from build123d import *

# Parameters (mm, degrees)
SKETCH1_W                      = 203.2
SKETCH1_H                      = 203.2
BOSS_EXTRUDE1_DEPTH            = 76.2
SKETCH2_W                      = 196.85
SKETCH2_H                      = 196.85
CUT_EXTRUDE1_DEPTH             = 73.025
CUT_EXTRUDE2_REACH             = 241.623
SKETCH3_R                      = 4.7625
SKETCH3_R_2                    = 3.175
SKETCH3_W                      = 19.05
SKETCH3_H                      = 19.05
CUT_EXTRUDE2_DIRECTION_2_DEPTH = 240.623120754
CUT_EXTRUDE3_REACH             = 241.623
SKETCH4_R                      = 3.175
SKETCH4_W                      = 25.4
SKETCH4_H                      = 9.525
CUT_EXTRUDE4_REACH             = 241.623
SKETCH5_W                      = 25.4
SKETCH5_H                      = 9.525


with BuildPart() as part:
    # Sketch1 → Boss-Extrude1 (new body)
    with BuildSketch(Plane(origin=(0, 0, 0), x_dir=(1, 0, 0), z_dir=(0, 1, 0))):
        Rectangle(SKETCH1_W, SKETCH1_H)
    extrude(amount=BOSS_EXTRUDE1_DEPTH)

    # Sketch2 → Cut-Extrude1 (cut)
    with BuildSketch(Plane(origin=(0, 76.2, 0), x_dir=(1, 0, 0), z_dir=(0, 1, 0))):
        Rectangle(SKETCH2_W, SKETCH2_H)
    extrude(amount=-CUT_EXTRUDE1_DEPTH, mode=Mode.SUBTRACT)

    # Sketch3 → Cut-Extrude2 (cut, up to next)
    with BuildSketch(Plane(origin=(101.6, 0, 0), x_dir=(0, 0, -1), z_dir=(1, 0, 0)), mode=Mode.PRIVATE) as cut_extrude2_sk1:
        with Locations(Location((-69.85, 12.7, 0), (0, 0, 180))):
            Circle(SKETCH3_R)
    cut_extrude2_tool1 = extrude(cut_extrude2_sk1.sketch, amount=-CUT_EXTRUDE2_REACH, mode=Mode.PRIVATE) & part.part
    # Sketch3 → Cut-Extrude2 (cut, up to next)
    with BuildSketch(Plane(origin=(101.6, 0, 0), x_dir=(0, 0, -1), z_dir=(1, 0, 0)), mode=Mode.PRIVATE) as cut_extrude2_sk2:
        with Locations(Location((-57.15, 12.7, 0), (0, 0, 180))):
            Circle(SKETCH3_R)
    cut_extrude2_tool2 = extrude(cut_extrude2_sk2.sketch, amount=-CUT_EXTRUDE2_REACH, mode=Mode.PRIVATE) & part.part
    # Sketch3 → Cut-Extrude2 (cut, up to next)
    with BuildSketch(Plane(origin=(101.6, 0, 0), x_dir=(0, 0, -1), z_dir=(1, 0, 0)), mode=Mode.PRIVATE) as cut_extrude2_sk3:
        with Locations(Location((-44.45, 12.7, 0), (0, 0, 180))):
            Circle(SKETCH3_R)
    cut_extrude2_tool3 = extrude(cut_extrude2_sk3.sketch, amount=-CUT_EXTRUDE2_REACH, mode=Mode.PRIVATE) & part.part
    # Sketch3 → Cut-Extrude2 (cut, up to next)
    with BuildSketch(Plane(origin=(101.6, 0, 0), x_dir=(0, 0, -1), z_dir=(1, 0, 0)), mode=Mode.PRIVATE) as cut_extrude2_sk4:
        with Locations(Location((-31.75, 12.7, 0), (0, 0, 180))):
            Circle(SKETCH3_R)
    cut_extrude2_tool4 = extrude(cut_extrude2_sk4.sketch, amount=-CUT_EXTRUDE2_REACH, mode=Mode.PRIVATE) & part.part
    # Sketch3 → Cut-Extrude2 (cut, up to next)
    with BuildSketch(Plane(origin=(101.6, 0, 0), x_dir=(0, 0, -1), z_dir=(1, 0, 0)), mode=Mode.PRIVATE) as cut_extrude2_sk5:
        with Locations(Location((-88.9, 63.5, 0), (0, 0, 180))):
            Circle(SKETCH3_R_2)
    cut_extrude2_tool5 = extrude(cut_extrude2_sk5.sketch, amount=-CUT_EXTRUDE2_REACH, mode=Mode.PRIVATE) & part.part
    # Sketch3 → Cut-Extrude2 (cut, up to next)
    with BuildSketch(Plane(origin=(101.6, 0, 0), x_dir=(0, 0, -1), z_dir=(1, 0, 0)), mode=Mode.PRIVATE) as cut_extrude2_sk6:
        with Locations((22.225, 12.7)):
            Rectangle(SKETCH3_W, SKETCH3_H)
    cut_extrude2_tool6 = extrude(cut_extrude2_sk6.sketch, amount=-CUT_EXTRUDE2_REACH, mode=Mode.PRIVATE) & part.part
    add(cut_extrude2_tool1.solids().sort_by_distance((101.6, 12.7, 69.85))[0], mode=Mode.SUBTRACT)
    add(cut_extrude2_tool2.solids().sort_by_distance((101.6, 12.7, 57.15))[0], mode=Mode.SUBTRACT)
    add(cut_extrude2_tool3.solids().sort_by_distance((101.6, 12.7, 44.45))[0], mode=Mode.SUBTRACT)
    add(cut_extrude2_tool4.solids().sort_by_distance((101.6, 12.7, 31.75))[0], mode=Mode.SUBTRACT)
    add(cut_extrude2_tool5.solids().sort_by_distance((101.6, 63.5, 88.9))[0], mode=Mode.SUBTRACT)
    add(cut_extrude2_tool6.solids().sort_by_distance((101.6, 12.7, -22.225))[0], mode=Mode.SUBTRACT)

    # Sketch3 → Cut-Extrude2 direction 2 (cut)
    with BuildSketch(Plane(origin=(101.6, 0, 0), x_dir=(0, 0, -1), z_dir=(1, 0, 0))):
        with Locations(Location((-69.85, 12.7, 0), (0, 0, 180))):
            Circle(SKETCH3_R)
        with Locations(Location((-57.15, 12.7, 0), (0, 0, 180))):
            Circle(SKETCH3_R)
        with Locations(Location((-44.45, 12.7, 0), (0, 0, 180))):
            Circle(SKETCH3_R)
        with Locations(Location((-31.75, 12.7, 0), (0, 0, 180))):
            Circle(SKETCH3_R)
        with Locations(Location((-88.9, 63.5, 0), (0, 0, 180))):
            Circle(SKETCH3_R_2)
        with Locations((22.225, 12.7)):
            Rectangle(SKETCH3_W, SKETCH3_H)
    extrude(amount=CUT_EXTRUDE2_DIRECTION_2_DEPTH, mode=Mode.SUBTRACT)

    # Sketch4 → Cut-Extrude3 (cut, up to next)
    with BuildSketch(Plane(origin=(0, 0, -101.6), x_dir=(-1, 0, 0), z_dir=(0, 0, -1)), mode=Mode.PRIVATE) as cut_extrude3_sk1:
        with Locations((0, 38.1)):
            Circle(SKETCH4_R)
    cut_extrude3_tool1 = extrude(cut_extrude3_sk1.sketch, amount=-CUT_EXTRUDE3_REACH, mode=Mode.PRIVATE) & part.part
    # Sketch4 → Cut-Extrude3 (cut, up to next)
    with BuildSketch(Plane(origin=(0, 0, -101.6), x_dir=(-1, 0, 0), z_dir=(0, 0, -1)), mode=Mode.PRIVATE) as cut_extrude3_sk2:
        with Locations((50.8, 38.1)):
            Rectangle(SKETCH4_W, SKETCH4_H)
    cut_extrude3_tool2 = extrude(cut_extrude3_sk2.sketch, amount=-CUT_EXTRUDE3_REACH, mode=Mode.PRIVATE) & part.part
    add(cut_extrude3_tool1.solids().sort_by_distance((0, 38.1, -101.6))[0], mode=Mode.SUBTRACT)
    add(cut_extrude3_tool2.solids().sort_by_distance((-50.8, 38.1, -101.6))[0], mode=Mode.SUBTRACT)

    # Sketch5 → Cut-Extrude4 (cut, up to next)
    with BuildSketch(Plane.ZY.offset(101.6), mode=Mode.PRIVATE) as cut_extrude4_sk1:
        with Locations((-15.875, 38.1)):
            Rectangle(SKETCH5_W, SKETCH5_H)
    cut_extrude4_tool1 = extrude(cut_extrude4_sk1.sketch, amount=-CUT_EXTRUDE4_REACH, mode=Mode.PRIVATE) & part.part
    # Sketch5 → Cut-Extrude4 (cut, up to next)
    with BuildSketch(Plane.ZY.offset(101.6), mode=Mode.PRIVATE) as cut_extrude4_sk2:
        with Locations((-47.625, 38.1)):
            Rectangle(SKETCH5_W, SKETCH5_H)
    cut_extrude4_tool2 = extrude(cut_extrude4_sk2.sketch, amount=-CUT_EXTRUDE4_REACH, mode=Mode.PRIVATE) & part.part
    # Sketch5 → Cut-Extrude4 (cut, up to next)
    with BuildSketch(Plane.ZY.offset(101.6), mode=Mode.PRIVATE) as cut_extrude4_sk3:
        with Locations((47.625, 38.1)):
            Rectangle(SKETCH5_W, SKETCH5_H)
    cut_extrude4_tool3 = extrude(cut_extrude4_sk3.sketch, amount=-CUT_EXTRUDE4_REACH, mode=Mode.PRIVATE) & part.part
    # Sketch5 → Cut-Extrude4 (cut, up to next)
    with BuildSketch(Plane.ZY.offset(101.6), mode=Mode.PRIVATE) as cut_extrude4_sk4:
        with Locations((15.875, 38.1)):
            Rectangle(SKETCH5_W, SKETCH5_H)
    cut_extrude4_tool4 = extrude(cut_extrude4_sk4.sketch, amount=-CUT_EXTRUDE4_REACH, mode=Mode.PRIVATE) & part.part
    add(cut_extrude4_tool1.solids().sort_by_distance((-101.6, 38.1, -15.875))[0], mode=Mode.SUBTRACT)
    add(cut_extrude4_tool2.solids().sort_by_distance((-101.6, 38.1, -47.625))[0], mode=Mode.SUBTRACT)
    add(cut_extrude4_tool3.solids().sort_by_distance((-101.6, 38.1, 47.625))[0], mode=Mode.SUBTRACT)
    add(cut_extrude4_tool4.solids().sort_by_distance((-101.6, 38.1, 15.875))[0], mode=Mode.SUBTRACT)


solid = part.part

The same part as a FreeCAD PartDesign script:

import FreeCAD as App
import Part
import Sketcher
Q = App.Units.Quantity


def add_polygon(sketch, points):
    """Adds a closed chain of lines whose ends are joined by coincident constraints."""
    first, n = sketch.GeometryCount, len(points)
    for a, b in zip(points, points[1:] + points[:1]):
        sketch.addGeometry(Part.LineSegment(App.Vector(*a, 0), App.Vector(*b, 0)), False)
    for i in range(n):
        sketch.addConstraint(Sketcher.Constraint("Coincident", first + i, 2, first + (i + 1) % n, 1))

doc = App.newDocument("Part")
params = doc.addObject("Spreadsheet::Sheet", "Params")
for row, (alias, value) in enumerate([
    ("sketch1_width", "8 in"),
    ("pad1_length", "3 in"),
    ("sketch2_width", "7.75 in"),
    ("pocket1_length", "2.875 in"),
    ("sketch3_diameter", "0.375 in"),
    ("sketch4_diameter", "0.375 in"),
    ("sketch5_diameter", "0.375 in"),
    ("sketch6_diameter", "0.375 in"),
    ("sketch7_diameter", "0.25 in"),
    ("sketch8_width", "0.75 in"),
    ("sketch9_diameter", "0.25 in"),
    ("sketch9_diameter2", "0.375 in"),
    ("sketch9_width", "0.75 in"),
    ("pocket8_length", "240.623121 mm"),
    ("sketch10_diameter", "0.25 in"),
    ("sketch11_width", "1 in"),
    ("sketch11_height", "0.375 in"),
    ("sketch12_height", "1 in"),
    ("sketch12_width", "0.375 in"),
    ("sketch13_height", "1 in"),
    ("sketch13_width", "0.375 in"),
    ("sketch14_height", "1 in"),
    ("sketch14_width", "0.375 in"),
    ("sketch15_height", "1 in"),
    ("sketch15_width", "0.375 in"),
], start=1):
    params.set(f"A{row}", alias)
    params.set(f"B{row}", "=" + value)
    params.setAlias(f"B{row}", alias)

body = doc.addObject("PartDesign::Body", "Body")

sketch1 = body.newObject("Sketcher::SketchObject", "Sketch")
sketch1.AttachmentSupport = (doc.getObject("XZ_Plane"), [""])
sketch1.MapMode = "FlatFace"
add_polygon(sketch1, [(-102, -102), (-102, 102), (102, 102), (102, -102)])
sketch1.addConstraint([
    Sketcher.Constraint("Vertical", 0),
    Sketcher.Constraint("Horizontal", 1),
    Sketcher.Constraint("Vertical", 2),
    Sketcher.Constraint("Horizontal", 3),
    Sketcher.Constraint("Symmetric", 0, 2, 2, 2, -1, 1),
    Sketcher.Constraint("Equal", 3, 0),
    Sketcher.Constraint("DistanceX", 1, 1, 1, 2, Q("8 in")),
])
sketch1.setExpression("Constraints[10]", "Params.sketch1_width")
pad1 = body.newObject("PartDesign::Pad", "Pad")
pad1.Profile = sketch1
pad1.setExpression("Length", "Params.pad1_length")
pad1.Reversed = True

sketch2 = body.newObject("Sketcher::SketchObject", "Sketch001")
sketch2.AttachmentSupport = (doc.getObject("XZ_Plane"), [""])
sketch2.MapMode = "FlatFace"
sketch2.AttachmentOffset = App.Placement(App.Vector(0, 0, -3 * 25.4), App.Rotation())
add_polygon(sketch2, [(-98, -98), (-98, 98), (98, 98), (98, -98)])
sketch2.addConstraint([
    Sketcher.Constraint("Vertical", 0),
    Sketcher.Constraint("Horizontal", 1),
    Sketcher.Constraint("Vertical", 2),
    Sketcher.Constraint("Horizontal", 3),
    Sketcher.Constraint("Symmetric", 0, 2, 2, 2, -1, 1),
    Sketcher.Constraint("Equal", 3, 0),
    Sketcher.Constraint("DistanceX", 1, 1, 1, 2, Q("7.75 in")),
])
sketch2.setExpression("Constraints[10]", "Params.sketch2_width")
pocket1 = body.newObject("PartDesign::Pocket", "Pocket")
pocket1.Profile = sketch2
pocket1.setExpression("Length", "Params.pocket1_length")
pocket1.Reversed = True

sketch3 = body.newObject("Sketcher::SketchObject", "Sketch002")
sketch3.AttachmentSupport = (doc.getObject("YZ_Plane"), [""])
sketch3.MapMode = "FlatFace"
sketch3.AttachmentOffset = App.Placement(App.Vector(0, 0, 4 * 25.4), App.Rotation())
sketch3.addGeometry(Part.Circle(App.Vector(12.7, 69.8, 0), App.Vector(0, 0, 1), 4.8), False)
sketch3.addConstraint([
    Sketcher.Constraint("Diameter", 0, Q("0.375 in")),
    Sketcher.Constraint("DistanceX", -1, 1, 0, 3, Q("0.5 in")),
    Sketcher.Constraint("DistanceY", -1, 1, 0, 3, Q("2.75 in")),
])
sketch3.setExpression("Constraints[0]", "Params.sketch3_diameter")
pocket2 = body.newObject("PartDesign::Pocket", "Pocket001")
pocket2.Profile = sketch3
pocket2.Type = "UpToFirst"

sketch4 = body.newObject("Sketcher::SketchObject", "Sketch003")
sketch4.AttachmentSupport = (doc.getObject("YZ_Plane"), [""])
sketch4.MapMode = "FlatFace"
sketch4.AttachmentOffset = App.Placement(App.Vector(0, 0, 4 * 25.4), App.Rotation())
sketch4.addGeometry(Part.Circle(App.Vector(12.7, 57.1, 0), App.Vector(0, 0, 1), 4.8), False)
sketch4.addConstraint([
    Sketcher.Constraint("Diameter", 0, Q("0.375 in")),
    Sketcher.Constraint("DistanceX", -1, 1, 0, 3, Q("0.5 in")),
    Sketcher.Constraint("DistanceY", -1, 1, 0, 3, Q("2.25 in")),
])
sketch4.setExpression("Constraints[0]", "Params.sketch4_diameter")
pocket3 = body.newObject("PartDesign::Pocket", "Pocket002")
pocket3.Profile = sketch4
pocket3.Type = "UpToFirst"

sketch5 = body.newObject("Sketcher::SketchObject", "Sketch004")
sketch5.AttachmentSupport = (doc.getObject("YZ_Plane"), [""])
sketch5.MapMode = "FlatFace"
sketch5.AttachmentOffset = App.Placement(App.Vector(0, 0, 4 * 25.4), App.Rotation())
sketch5.addGeometry(Part.Circle(App.Vector(12.7, 44.5, 0), App.Vector(0, 0, 1), 4.8), False)
sketch5.addConstraint([
    Sketcher.Constraint("Diameter", 0, Q("0.375 in")),
    Sketcher.Constraint("DistanceX", -1, 1, 0, 3, Q("0.5 in")),
    Sketcher.Constraint("DistanceY", -1, 1, 0, 3, Q("1.75 in")),
])
sketch5.setExpression("Constraints[0]", "Params.sketch5_diameter")
pocket4 = body.newObject("PartDesign::Pocket", "Pocket003")
pocket4.Profile = sketch5
pocket4.Type = "UpToFirst"

sketch6 = body.newObject("Sketcher::SketchObject", "Sketch005")
sketch6.AttachmentSupport = (doc.getObject("YZ_Plane"), [""])
sketch6.MapMode = "FlatFace"
sketch6.AttachmentOffset = App.Placement(App.Vector(0, 0, 4 * 25.4), App.Rotation())
sketch6.addGeometry(Part.Circle(App.Vector(12.7, 31.8, 0), App.Vector(0, 0, 1), 4.8), False)
sketch6.addConstraint([
    Sketcher.Constraint("Diameter", 0, Q("0.375 in")),
    Sketcher.Constraint("DistanceX", -1, 1, 0, 3, Q("0.5 in")),
    Sketcher.Constraint("DistanceY", -1, 1, 0, 3, Q("1.25 in")),
])
sketch6.setExpression("Constraints[0]", "Params.sketch6_diameter")
pocket5 = body.newObject("PartDesign::Pocket", "Pocket004")
pocket5.Profile = sketch6
pocket5.Type = "UpToFirst"

sketch7 = body.newObject("Sketcher::SketchObject", "Sketch006")
sketch7.AttachmentSupport = (doc.getObject("YZ_Plane"), [""])
sketch7.MapMode = "FlatFace"
sketch7.AttachmentOffset = App.Placement(App.Vector(0, 0, 4 * 25.4), App.Rotation())
sketch7.addGeometry(Part.Circle(App.Vector(63.5, 88.9, 0), App.Vector(0, 0, 1), 3.2), False)
sketch7.addConstraint([
    Sketcher.Constraint("Diameter", 0, Q("0.25 in")),
    Sketcher.Constraint("DistanceX", -1, 1, 0, 3, Q("2.5 in")),
    Sketcher.Constraint("DistanceY", -1, 1, 0, 3, Q("3.5 in")),
])
sketch7.setExpression("Constraints[0]", "Params.sketch7_diameter")
pocket6 = body.newObject("PartDesign::Pocket", "Pocket005")
pocket6.Profile = sketch7
pocket6.Type = "UpToFirst"

sketch8 = body.newObject("Sketcher::SketchObject", "Sketch007")
sketch8.AttachmentSupport = (doc.getObject("YZ_Plane"), [""])
sketch8.MapMode = "FlatFace"
sketch8.AttachmentOffset = App.Placement(App.Vector(0, 0, 4 * 25.4), App.Rotation())
add_polygon(sketch8, [(22, -13), (3, -13), (3, -32), (22, -32)])
sketch8.addConstraint([
    Sketcher.Constraint("Horizontal", 0),
    Sketcher.Constraint("Vertical", 1),
    Sketcher.Constraint("Horizontal", 2),
    Sketcher.Constraint("Vertical", 3),
    Sketcher.Constraint("Equal", 2, 1),
    Sketcher.Constraint("DistanceX", 0, 2, 0, 1, Q("0.75 in")),
    Sketcher.Constraint("DistanceY", 0, 2, -1, 1, Q("0.5 in")),
    Sketcher.Constraint("DistanceX", -1, 1, 0, 2, Q("0.125 in")),
])
sketch8.setExpression("Constraints[9]", "Params.sketch8_width")
pocket7 = body.newObject("PartDesign::Pocket", "Pocket006")
pocket7.Profile = sketch8
pocket7.Type = "UpToFirst"

sketch9 = body.newObject("Sketcher::SketchObject", "Sketch008")
sketch9.AttachmentSupport = (doc.getObject("YZ_Plane"), [""])
sketch9.MapMode = "FlatFace"
sketch9.AttachmentOffset = App.Placement(App.Vector(0, 0, 4 * 25.4), App.Rotation())
sketch9.addGeometry(Part.Circle(App.Vector(12.7, 69.8, 0), App.Vector(0, 0, 1), 4.8), False)
sketch9.addGeometry(Part.Circle(App.Vector(12.7, 57.1, 0), App.Vector(0, 0, 1), 4.8), False)
sketch9.addGeometry(Part.Circle(App.Vector(12.7, 44.5, 0), App.Vector(0, 0, 1), 4.8), False)
sketch9.addGeometry(Part.Circle(App.Vector(12.7, 31.8, 0), App.Vector(0, 0, 1), 4.8), False)
sketch9.addGeometry(Part.Circle(App.Vector(63.5, 88.9, 0), App.Vector(0, 0, 1), 3.2), False)
add_polygon(sketch9, [(22.2, -12.7), (3.2, -12.7), (3.2, -31.8), (22.2, -31.8)])
sketch9.addConstraint([
    Sketcher.Constraint("Horizontal", 5),
    Sketcher.Constraint("Vertical", 6),
    Sketcher.Constraint("Horizontal", 7),
    Sketcher.Constraint("Vertical", 8),
    Sketcher.Constraint("Equal", 0, 1),
    Sketcher.Constraint("Equal", 1, 2),
    Sketcher.Constraint("Equal", 2, 3),
    Sketcher.Constraint("Vertical", 0, 3, 1, 3),
    Sketcher.Constraint("Vertical", 1, 3, 2, 3),
    Sketcher.Constraint("Vertical", 2, 3, 3, 3),
    Sketcher.Constraint("Equal", 7, 6),
    Sketcher.Constraint("Diameter", 4, Q("0.25 in")),
    Sketcher.Constraint("Diameter", 0, Q("0.375 in")),
    Sketcher.Constraint("DistanceY", 2, 3, 0, 3, Q("1 in")),
    Sketcher.Constraint("DistanceY", 3, 3, 1, 3, Q("1 in")),
    Sketcher.Constraint("DistanceX", 0, 3, 4, 3, Q("2 in")),
    Sketcher.Constraint("DistanceY", 5, 2, 4, 3, Q("4 in")),
    Sketcher.Constraint("DistanceY", 6, 2, 2, 3, Q("3 in")),
    Sketcher.Constraint("DistanceX", 5, 2, 5, 1, Q("0.75 in")),
    Sketcher.Constraint("DistanceX", -1, 1, 0, 3, Q("0.5 in")),
    Sketcher.Constraint("DistanceY", -1, 1, 4, 3, Q("3.5 in")),
    Sketcher.Constraint("DistanceY", 1, 3, 0, 3, Q("0.5 in")),
    Sketcher.Constraint("DistanceX", -1, 1, 5, 2, Q("0.125 in")),
])
sketch9.setExpression("Constraints[15]", "Params.sketch9_diameter")
sketch9.setExpression("Constraints[16]", "Params.sketch9_diameter2")
sketch9.setExpression("Constraints[22]", "Params.sketch9_width")
pocket8 = body.newObject("PartDesign::Pocket", "Pocket007")
pocket8.Profile = sketch9
pocket8.setExpression("Length", "Params.pocket8_length")
pocket8.Reversed = True

sketch10 = body.newObject("Sketcher::SketchObject", "Sketch009")
sketch10.AttachmentSupport = (doc.getObject("XY_Plane"), [""])
sketch10.MapMode = "FlatFace"
sketch10.AttachmentOffset = App.Placement(App.Vector(0, 0, -4 * 25.4), App.Rotation())
sketch10.addGeometry(Part.Circle(App.Vector(0, 38.1, 0), App.Vector(0, 0, 1), 3.2), False)
sketch10.addConstraint([
    Sketcher.Constraint("PointOnObject", 0, 3, -2),
    Sketcher.Constraint("Diameter", 0, Q("0.25 in")),
    Sketcher.Constraint("DistanceY", -1, 1, 0, 3, Q("1.5 in")),
])
sketch10.setExpression("Constraints[1]", "Params.sketch10_diameter")
pocket9 = body.newObject("PartDesign::Pocket", "Pocket008")
pocket9.Profile = sketch10
pocket9.Type = "UpToFirst"
pocket9.Reversed = True

sketch11 = body.newObject("Sketcher::SketchObject", "Sketch010")
sketch11.AttachmentSupport = (doc.getObject("XY_Plane"), [""])
sketch11.MapMode = "FlatFace"
sketch11.AttachmentOffset = App.Placement(App.Vector(0, 0, -4 * 25.4), App.Rotation())
add_polygon(sketch11, [(-38, 43), (-38, 33), (-64, 33), (-64, 43)])
sketch11.addConstraint([
    Sketcher.Constraint("Vertical", 0),
    Sketcher.Constraint("Horizontal", 1),
    Sketcher.Constraint("Vertical", 2),
    Sketcher.Constraint("Horizontal", 3),
    Sketcher.Constraint("DistanceX", 1, 2, 1, 1, Q("1 in")),
    Sketcher.Constraint("DistanceX", 0, 2, -1, 1, Q("1.5 in")),
    Sketcher.Constraint("DistanceY", 0, 2, 0, 1, Q("0.375 in")),
    Sketcher.Constraint("DistanceY", -1, 1, 0, 2, Q("1.3125 in")),
])
sketch11.setExpression("Constraints[8]", "Params.sketch11_width")
sketch11.setExpression("Constraints[10]", "Params.sketch11_height")
pocket10 = body.newObject("PartDesign::Pocket", "Pocket009")
pocket10.Profile = sketch11
pocket10.Type = "UpToFirst"
pocket10.Reversed = True

sketch12 = body.newObject("Sketcher::SketchObject", "Sketch011")
sketch12.AttachmentSupport = (doc.getObject("YZ_Plane"), [""])
sketch12.MapMode = "FlatFace"
sketch12.AttachmentOffset = App.Placement(App.Vector(0, 0, -4 * 25.4), App.Rotation())
add_polygon(sketch12, [(43, -29), (33, -29), (33, -3), (43, -3)])
sketch12.addConstraint([
    Sketcher.Constraint("Horizontal", 0),
    Sketcher.Constraint("Vertical", 1),
    Sketcher.Constraint("Horizontal", 2),
    Sketcher.Constraint("Vertical", 3),
    Sketcher.Constraint("DistanceY", 1, 1, 1, 2, Q("1 in")),
    Sketcher.Constraint("DistanceX", 0, 2, 0, 1, Q("0.375 in")),
    Sketcher.Constraint("DistanceX", -1, 1, 0, 2, Q("1.3125 in")),
    Sketcher.Constraint("DistanceY", 0, 2, -1, 1, Q("1.125 in")),
])
sketch12.setExpression("Constraints[8]", "Params.sketch12_height")
sketch12.setExpression("Constraints[9]", "Params.sketch12_width")
pocket11 = body.newObject("PartDesign::Pocket", "Pocket010")
pocket11.Profile = sketch12
pocket11.Type = "UpToFirst"
pocket11.Reversed = True

sketch13 = body.newObject("Sketcher::SketchObject", "Sketch012")
sketch13.AttachmentSupport = (doc.getObject("YZ_Plane"), [""])
sketch13.MapMode = "FlatFace"
sketch13.AttachmentOffset = App.Placement(App.Vector(0, 0, -4 * 25.4), App.Rotation())
add_polygon(sketch13, [(43, -60), (33, -60), (33, -35), (43, -35)])
sketch13.addConstraint([
    Sketcher.Constraint("Horizontal", 0),
    Sketcher.Constraint("Vertical", 1),
    Sketcher.Constraint("Horizontal", 2),
    Sketcher.Constraint("Vertical", 3),
    Sketcher.Constraint("DistanceY", 1, 1, 1, 2, Q("1 in")),
    Sketcher.Constraint("DistanceX", 0, 2, 0, 1, Q("0.375 in")),
    Sketcher.Constraint("DistanceX", -1, 1, 0, 2, Q("1.3125 in")),
    Sketcher.Constraint("DistanceY", 0, 2, -1, 1, Q("2.375 in")),
])
sketch13.setExpression("Constraints[8]", "Params.sketch13_height")
sketch13.setExpression("Constraints[9]", "Params.sketch13_width")
pocket12 = body.newObject("PartDesign::Pocket", "Pocket011")
pocket12.Profile = sketch13
pocket12.Type = "UpToFirst"
pocket12.Reversed = True

sketch14 = body.newObject("Sketcher::SketchObject", "Sketch013")
sketch14.AttachmentSupport = (doc.getObject("YZ_Plane"), [""])
sketch14.MapMode = "FlatFace"
sketch14.AttachmentOffset = App.Placement(App.Vector(0, 0, -4 * 25.4), App.Rotation())
add_polygon(sketch14, [(43, 35), (33, 35), (33, 60), (43, 60)])
sketch14.addConstraint([
    Sketcher.Constraint("Horizontal", 0),
    Sketcher.Constraint("Vertical", 1),
    Sketcher.Constraint("Horizontal", 2),
    Sketcher.Constraint("Vertical", 3),
    Sketcher.Constraint("DistanceY", 1, 1, 1, 2, Q("1 in")),
    Sketcher.Constraint("DistanceX", 0, 2, 0, 1, Q("0.375 in")),
    Sketcher.Constraint("DistanceX", -1, 1, 0, 2, Q("1.3125 in")),
    Sketcher.Constraint("DistanceY", -1, 1, 0, 2, Q("1.375 in")),
])
sketch14.setExpression("Constraints[8]", "Params.sketch14_height")
sketch14.setExpression("Constraints[9]", "Params.sketch14_width")
pocket13 = body.newObject("PartDesign::Pocket", "Pocket012")
pocket13.Profile = sketch14
pocket13.Type = "UpToFirst"
pocket13.Reversed = True

sketch15 = body.newObject("Sketcher::SketchObject", "Sketch014")
sketch15.AttachmentSupport = (doc.getObject("YZ_Plane"), [""])
sketch15.MapMode = "FlatFace"
sketch15.AttachmentOffset = App.Placement(App.Vector(0, 0, -4 * 25.4), App.Rotation())
add_polygon(sketch15, [(43, 3), (33, 3), (33, 29), (43, 29)])
sketch15.addConstraint([
    Sketcher.Constraint("Horizontal", 0),
    Sketcher.Constraint("Vertical", 1),
    Sketcher.Constraint("Horizontal", 2),
    Sketcher.Constraint("Vertical", 3),
    Sketcher.Constraint("DistanceY", 1, 1, 1, 2, Q("1 in")),
    Sketcher.Constraint("DistanceX", 0, 2, 0, 1, Q("0.375 in")),
    Sketcher.Constraint("DistanceX", -1, 1, 0, 2, Q("1.3125 in")),
    Sketcher.Constraint("DistanceY", -1, 1, 0, 2, Q("0.125 in")),
])
sketch15.setExpression("Constraints[8]", "Params.sketch15_height")
sketch15.setExpression("Constraints[9]", "Params.sketch15_width")
pocket14 = body.newObject("PartDesign::Pocket", "Pocket013")
pocket14.Profile = sketch15
pocket14.Type = "UpToFirst"
pocket14.Reversed = True

doc.recompute()
